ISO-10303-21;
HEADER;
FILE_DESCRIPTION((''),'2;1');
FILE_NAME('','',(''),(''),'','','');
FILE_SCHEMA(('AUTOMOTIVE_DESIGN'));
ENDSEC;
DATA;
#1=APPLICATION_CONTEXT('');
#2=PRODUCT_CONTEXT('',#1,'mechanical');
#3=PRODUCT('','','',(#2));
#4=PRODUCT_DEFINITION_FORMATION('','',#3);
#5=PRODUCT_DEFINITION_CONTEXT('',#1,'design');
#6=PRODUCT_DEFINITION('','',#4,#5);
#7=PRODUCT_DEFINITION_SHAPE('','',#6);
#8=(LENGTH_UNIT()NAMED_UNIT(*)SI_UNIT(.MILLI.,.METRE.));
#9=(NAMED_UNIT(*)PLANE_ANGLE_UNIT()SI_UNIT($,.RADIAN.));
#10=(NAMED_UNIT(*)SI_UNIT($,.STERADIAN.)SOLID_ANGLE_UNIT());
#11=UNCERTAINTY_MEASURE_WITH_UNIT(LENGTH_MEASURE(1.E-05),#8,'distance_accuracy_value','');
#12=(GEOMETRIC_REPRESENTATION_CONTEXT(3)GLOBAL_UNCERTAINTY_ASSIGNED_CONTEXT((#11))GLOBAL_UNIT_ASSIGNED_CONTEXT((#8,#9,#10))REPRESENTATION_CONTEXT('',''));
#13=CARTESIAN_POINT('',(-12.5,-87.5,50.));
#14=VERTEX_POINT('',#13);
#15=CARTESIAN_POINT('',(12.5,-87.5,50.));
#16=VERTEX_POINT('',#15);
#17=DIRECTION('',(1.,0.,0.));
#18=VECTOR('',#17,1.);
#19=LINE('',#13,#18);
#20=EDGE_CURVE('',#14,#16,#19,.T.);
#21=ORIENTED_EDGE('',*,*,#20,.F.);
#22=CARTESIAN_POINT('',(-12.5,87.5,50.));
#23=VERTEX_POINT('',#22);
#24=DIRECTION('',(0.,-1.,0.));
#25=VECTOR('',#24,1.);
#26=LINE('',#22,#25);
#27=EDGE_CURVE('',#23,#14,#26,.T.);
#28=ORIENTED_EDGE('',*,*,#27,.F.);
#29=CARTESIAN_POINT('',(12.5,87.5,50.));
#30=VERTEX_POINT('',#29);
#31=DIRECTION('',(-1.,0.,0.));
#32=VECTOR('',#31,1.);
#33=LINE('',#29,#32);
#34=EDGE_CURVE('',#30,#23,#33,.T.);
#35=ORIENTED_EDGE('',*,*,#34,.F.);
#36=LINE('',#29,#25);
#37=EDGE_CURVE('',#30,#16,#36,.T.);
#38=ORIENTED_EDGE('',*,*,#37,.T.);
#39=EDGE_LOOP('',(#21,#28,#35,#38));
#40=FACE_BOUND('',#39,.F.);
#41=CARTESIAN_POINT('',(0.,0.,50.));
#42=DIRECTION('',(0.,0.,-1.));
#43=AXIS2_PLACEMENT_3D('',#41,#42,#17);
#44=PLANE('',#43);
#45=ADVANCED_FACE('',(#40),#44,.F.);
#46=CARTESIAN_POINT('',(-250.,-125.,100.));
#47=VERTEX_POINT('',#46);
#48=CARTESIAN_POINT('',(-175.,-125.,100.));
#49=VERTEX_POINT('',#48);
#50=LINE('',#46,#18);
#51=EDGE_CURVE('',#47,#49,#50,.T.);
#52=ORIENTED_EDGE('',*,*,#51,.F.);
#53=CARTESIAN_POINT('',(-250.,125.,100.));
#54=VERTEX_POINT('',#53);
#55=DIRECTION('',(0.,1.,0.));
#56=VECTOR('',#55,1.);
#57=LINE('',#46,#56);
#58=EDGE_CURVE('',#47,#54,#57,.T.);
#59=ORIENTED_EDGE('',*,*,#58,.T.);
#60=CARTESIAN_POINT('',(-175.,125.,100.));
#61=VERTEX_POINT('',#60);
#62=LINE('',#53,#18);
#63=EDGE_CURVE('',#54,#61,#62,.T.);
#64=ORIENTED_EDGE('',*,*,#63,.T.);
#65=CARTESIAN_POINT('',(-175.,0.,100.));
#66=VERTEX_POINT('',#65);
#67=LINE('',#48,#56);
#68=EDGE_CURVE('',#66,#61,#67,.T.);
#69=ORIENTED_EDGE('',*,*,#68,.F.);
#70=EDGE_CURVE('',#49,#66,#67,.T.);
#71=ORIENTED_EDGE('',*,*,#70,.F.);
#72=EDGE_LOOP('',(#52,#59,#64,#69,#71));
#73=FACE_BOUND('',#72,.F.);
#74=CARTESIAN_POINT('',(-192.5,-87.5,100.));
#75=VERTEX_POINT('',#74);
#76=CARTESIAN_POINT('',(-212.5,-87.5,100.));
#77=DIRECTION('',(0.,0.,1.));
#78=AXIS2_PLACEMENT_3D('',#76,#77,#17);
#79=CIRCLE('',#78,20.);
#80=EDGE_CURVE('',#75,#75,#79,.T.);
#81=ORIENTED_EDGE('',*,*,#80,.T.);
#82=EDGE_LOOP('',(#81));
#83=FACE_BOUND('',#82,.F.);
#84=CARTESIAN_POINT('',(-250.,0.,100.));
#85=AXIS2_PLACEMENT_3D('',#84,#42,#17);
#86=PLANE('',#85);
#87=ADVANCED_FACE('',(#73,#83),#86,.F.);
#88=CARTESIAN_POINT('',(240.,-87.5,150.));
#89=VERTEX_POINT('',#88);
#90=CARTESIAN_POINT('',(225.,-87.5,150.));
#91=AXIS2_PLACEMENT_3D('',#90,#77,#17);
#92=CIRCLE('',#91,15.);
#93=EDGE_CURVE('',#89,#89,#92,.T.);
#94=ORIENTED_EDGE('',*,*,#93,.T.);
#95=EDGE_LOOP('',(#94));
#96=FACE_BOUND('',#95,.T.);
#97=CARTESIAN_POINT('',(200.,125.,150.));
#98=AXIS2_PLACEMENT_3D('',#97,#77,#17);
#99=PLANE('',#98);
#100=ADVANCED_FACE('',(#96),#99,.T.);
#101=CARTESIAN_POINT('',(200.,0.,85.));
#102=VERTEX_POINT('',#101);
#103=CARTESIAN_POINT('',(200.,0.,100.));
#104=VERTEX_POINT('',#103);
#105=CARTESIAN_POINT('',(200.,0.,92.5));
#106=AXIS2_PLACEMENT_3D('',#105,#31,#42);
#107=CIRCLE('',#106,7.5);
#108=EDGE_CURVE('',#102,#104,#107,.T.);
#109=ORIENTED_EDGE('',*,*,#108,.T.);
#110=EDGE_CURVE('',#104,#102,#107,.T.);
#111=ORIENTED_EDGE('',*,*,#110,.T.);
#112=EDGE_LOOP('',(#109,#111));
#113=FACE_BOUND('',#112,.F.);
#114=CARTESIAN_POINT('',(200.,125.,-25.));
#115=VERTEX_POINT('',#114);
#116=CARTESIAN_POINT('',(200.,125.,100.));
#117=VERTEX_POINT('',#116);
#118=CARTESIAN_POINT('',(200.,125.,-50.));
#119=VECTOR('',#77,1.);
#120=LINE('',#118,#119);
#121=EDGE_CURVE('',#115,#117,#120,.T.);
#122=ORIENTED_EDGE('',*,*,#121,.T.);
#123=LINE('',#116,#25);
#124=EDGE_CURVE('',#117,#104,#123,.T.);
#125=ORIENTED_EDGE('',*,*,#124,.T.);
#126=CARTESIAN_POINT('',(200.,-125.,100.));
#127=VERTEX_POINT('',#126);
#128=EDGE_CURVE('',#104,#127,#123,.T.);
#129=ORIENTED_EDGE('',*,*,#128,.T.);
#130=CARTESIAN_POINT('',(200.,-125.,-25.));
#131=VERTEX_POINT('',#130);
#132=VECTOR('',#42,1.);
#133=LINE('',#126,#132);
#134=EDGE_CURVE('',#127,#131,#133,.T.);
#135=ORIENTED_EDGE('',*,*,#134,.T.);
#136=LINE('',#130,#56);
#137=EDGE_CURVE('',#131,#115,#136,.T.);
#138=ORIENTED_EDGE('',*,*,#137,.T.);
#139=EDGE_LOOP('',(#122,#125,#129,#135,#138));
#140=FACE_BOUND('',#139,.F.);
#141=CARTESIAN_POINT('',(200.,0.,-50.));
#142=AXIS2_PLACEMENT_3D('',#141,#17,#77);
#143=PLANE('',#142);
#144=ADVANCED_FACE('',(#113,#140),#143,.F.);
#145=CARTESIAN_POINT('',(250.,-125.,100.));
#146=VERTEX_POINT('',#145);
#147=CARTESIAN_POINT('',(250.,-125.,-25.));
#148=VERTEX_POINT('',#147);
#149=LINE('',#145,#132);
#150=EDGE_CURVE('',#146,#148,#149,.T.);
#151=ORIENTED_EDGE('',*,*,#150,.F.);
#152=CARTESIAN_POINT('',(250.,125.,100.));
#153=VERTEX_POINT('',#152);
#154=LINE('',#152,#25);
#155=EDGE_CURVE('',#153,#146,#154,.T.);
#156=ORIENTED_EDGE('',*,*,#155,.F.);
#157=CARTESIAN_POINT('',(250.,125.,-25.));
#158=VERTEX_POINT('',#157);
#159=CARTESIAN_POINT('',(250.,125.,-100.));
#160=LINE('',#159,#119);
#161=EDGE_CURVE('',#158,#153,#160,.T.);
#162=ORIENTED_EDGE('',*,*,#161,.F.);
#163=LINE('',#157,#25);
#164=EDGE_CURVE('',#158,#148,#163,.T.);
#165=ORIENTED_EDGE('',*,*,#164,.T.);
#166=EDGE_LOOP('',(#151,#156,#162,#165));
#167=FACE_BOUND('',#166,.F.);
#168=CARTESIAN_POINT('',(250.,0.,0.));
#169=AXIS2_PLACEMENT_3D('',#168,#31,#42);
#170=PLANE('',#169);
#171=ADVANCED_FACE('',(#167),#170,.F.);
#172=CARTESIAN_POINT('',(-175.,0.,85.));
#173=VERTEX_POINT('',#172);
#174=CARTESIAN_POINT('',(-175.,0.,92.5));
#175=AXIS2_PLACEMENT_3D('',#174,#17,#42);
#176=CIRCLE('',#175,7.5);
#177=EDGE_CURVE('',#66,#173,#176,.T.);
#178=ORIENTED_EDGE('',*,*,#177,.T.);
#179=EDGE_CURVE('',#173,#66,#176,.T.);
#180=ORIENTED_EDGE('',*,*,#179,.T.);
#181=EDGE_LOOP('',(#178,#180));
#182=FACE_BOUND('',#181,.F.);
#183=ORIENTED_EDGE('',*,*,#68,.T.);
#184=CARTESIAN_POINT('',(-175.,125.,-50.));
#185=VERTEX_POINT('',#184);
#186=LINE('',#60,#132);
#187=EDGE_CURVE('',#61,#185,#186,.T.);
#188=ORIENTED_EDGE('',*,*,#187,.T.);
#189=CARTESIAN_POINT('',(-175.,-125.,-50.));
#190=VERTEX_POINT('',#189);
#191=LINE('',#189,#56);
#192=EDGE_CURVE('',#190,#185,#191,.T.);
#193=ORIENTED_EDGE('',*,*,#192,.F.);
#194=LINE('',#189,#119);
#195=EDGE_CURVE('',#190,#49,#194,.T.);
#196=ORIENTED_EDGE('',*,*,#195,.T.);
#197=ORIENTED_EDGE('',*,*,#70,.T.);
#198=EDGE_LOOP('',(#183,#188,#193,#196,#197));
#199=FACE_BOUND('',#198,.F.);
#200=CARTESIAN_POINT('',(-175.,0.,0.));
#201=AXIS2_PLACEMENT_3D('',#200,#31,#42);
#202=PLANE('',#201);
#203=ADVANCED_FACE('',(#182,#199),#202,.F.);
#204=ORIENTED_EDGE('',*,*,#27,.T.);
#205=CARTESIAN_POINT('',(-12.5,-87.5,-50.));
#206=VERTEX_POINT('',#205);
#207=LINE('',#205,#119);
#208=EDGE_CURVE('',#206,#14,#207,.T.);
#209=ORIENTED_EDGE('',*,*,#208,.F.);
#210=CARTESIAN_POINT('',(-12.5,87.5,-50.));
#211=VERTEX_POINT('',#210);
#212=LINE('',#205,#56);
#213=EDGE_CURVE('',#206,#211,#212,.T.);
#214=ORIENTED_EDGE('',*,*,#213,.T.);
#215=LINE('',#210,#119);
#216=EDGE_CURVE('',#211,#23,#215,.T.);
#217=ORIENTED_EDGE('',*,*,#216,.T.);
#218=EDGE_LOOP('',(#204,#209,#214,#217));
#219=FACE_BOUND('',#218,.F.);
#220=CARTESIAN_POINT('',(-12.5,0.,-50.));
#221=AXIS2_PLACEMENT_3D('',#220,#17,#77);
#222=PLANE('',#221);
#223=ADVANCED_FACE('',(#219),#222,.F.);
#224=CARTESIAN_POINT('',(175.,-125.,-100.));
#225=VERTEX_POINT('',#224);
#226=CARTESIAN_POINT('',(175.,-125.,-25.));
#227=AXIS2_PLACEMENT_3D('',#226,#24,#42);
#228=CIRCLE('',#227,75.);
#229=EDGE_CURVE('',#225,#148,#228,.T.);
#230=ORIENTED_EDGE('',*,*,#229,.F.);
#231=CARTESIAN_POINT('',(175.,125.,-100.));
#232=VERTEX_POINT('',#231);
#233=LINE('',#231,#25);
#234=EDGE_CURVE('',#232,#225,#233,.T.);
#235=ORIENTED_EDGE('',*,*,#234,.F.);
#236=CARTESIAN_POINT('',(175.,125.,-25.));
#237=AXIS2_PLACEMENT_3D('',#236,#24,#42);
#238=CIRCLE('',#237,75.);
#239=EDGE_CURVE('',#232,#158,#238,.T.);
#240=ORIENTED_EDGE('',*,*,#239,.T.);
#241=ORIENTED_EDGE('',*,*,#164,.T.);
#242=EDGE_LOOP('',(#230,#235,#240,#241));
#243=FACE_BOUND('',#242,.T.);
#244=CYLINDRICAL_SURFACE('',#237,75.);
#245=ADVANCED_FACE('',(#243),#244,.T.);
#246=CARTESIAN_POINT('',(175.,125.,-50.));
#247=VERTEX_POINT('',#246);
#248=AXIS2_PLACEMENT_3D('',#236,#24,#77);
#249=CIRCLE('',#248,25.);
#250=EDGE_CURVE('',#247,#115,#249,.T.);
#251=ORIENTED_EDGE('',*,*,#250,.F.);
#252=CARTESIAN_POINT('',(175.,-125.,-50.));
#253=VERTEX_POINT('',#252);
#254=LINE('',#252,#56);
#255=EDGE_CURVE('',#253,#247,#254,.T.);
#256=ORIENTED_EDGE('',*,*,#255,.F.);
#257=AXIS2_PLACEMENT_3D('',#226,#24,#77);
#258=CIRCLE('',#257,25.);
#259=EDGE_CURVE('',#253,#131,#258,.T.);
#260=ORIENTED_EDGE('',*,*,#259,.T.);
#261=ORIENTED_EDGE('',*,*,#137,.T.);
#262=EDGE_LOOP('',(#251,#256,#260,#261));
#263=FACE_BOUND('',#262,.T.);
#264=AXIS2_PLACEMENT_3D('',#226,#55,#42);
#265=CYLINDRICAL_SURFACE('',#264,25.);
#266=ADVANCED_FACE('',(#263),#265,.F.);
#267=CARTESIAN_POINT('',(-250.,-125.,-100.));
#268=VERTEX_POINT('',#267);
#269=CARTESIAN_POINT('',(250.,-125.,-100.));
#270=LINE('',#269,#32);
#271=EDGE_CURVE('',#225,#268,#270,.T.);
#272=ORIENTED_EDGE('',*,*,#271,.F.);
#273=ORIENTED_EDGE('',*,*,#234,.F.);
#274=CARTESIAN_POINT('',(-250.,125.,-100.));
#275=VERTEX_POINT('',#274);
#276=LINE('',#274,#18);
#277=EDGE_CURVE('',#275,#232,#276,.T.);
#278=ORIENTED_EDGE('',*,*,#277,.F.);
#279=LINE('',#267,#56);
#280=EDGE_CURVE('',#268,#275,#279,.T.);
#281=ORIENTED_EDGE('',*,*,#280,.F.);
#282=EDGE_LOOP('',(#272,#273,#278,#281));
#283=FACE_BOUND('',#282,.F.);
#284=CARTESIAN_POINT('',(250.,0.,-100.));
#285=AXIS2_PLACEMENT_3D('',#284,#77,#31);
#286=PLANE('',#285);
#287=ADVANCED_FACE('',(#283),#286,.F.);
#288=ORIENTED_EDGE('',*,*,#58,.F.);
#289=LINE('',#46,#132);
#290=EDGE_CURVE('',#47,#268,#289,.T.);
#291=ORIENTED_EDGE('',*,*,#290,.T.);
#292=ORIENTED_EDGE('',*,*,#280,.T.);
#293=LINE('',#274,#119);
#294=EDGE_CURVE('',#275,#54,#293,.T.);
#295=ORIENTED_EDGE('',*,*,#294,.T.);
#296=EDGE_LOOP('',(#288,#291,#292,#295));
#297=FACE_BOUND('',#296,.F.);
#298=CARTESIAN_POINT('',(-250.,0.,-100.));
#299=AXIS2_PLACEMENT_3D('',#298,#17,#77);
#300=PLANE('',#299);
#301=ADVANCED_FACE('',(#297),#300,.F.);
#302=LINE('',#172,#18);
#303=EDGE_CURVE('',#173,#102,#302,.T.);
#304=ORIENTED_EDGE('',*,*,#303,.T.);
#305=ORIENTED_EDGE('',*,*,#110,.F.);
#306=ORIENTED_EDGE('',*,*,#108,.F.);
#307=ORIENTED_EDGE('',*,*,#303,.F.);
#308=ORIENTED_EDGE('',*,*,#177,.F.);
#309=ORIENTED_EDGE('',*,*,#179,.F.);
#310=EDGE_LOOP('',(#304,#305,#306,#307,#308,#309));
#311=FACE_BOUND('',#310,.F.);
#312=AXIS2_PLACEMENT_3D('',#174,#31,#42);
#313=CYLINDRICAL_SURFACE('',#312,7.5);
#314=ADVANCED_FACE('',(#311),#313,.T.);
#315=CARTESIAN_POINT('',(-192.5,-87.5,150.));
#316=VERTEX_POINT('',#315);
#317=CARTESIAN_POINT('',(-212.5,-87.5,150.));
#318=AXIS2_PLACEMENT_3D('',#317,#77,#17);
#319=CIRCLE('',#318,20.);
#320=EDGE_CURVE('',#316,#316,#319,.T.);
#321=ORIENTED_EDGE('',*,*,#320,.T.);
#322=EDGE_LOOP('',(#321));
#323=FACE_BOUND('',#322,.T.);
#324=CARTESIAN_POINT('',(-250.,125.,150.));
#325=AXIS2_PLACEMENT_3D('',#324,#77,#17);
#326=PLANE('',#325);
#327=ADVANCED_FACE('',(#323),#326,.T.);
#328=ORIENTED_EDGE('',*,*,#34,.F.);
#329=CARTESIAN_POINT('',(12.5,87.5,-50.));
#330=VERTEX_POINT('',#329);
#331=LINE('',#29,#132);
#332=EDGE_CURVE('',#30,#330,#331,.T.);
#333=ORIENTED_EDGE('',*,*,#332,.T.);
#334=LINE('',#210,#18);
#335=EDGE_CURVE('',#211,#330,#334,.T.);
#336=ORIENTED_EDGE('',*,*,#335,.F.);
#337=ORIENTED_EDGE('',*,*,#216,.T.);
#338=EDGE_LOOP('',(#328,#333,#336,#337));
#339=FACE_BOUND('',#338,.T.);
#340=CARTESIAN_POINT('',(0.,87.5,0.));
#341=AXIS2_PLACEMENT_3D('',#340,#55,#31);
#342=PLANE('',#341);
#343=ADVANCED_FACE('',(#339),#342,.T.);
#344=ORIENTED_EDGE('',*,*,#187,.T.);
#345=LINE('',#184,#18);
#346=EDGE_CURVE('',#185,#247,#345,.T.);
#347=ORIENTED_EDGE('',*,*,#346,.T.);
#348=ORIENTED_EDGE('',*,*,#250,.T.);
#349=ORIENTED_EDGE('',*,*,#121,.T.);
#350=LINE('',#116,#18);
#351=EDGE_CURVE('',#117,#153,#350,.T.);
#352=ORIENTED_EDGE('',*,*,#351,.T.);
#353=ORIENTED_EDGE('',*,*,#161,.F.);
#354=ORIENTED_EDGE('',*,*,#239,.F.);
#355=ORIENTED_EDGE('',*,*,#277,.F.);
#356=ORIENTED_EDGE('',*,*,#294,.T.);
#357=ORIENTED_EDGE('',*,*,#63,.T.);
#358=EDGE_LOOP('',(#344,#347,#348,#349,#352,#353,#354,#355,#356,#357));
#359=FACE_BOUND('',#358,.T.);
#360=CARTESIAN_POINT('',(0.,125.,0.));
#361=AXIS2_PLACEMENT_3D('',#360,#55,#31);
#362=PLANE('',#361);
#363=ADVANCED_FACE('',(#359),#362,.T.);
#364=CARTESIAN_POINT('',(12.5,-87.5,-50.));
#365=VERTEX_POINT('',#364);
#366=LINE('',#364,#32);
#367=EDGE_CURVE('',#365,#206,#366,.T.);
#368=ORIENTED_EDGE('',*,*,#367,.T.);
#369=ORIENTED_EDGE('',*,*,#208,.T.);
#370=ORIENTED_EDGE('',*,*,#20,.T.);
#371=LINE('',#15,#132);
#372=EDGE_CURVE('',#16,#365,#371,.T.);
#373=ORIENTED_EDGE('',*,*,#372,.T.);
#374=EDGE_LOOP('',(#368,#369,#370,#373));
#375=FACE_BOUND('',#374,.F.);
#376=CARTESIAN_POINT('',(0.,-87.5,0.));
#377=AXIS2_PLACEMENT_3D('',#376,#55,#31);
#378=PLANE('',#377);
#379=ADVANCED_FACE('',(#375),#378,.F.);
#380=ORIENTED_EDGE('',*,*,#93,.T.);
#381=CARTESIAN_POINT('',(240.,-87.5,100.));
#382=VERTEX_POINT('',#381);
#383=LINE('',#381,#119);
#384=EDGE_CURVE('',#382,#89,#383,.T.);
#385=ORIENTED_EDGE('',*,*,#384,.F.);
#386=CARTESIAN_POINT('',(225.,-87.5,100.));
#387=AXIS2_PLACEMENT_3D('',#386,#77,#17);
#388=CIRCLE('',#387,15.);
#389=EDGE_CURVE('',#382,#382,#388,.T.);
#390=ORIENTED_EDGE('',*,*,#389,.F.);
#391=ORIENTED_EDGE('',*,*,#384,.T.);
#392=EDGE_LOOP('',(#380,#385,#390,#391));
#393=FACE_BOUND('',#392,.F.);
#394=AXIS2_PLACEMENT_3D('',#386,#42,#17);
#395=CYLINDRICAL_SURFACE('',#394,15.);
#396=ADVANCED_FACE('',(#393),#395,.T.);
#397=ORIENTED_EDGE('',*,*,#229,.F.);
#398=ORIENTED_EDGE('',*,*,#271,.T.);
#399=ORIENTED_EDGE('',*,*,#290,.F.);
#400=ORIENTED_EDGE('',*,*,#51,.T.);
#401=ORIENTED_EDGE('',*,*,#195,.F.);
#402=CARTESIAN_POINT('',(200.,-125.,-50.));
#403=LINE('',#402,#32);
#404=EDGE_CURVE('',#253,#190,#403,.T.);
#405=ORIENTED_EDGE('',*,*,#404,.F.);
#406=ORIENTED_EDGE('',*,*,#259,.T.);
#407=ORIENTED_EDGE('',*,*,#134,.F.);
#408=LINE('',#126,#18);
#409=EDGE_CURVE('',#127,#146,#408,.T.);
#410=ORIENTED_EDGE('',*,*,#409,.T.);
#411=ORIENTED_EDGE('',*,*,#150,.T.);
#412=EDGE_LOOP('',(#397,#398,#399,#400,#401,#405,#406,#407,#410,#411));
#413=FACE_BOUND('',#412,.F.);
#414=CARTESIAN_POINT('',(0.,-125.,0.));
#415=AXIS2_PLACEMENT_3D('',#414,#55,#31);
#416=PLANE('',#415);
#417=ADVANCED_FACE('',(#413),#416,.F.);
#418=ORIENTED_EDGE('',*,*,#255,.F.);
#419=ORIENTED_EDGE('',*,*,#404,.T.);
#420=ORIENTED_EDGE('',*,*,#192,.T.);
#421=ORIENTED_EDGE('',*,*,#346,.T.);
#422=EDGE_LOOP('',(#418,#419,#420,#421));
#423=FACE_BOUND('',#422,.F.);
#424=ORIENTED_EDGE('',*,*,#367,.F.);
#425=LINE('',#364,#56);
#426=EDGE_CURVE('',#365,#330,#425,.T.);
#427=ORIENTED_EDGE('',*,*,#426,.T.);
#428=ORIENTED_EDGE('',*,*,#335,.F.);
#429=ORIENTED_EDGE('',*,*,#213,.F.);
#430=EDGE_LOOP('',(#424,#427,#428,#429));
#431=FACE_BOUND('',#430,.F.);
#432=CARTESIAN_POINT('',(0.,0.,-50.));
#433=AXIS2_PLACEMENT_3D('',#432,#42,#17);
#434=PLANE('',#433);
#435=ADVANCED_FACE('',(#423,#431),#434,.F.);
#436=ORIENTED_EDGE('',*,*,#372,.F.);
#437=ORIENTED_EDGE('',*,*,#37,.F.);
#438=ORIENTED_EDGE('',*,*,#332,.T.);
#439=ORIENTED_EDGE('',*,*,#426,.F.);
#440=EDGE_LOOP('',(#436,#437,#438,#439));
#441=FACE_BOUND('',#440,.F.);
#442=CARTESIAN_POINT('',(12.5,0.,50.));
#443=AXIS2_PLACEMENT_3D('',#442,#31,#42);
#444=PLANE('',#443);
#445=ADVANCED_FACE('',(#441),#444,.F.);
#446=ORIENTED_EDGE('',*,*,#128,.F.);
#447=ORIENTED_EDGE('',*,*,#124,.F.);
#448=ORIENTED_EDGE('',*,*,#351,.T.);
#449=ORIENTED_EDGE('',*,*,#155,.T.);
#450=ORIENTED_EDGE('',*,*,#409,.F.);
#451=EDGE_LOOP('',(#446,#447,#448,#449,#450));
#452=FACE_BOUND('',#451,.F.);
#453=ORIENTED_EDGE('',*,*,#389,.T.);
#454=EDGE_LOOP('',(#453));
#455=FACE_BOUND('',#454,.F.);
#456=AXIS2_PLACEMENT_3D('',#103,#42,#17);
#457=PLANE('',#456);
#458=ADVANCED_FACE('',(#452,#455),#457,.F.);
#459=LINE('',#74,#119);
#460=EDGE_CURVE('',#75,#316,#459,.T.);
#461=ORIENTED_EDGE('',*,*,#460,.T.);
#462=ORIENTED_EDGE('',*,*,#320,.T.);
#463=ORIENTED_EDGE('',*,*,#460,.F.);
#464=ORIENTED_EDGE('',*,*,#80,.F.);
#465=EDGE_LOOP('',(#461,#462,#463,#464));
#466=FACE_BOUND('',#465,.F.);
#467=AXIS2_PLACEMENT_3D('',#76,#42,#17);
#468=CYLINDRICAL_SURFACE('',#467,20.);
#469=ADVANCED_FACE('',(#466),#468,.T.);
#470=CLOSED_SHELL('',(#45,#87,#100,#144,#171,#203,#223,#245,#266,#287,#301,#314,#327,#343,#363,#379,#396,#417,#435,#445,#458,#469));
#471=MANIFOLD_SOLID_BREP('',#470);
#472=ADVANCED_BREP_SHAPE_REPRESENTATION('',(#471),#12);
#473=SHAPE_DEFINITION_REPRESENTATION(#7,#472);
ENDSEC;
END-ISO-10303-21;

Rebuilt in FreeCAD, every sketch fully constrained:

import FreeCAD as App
import Part
import Sketcher

V = App.Vector
Q = App.Units.Quantity


def edges_at(feature, points):
    """Names of the edges that pass closest to the given points."""
    edges = feature.Shape.Edges
    near = lambda p: min(range(len(edges)), key=lambda i: edges[i].distToShape(Part.Vertex(*p))[0])
    return sorted({f"Edge{near(p) + 1}" for p in points})


def add_polygon(sketch, points):
    """Adds a closed chain of lines whose ends are joined by coincident constraints."""
    first, n = sketch.GeometryCount, len(points)
    for a, b in zip(points, points[1:] + points[:1]):
        sketch.addGeometry(Part.LineSegment(App.Vector(*a, 0), App.Vector(*b, 0)), False)
    for i in range(n):
        sketch.addConstraint(Sketcher.Constraint("Coincident", first + i, 2, first + (i + 1) % n, 1))

doc = App.newDocument("Part")
body = doc.addObject("PartDesign::Body", "Body")

sketch1 = doc.addObject("Sketcher::SketchObject", "Sketch")
body.addObject(sketch1)
sketch1.AttachmentSupport = (doc.XZ_Plane, [""])
sketch1.MapMode = "FlatFace"
add_polygon(sketch1, [(250, -100), (-250, -100), (-250, 100), (-175, 100), (-175, -50), (200, -50), (200, 100), (250, 100)])
sketch1.addConstraint([
    Sketcher.Constraint("Horizontal", 0),
    Sketcher.Constraint("Vertical", 1),
    Sketcher.Constraint("Horizontal", 2),
    Sketcher.Constraint("Vertical", 3),
    Sketcher.Constraint("Horizontal", 4),
    Sketcher.Constraint("Vertical", 5),
    Sketcher.Constraint("Horizontal", 6),
    Sketcher.Constraint("Vertical", 7),
    Sketcher.Constraint("Symmetric", 0, 2, 6, 2, -1, 1),
    Sketcher.Constraint("Horizontal", 2, 2, 5, 2),
    Sketcher.Constraint("DistanceX", 0, 2, 0, 1, Q("500 mm")),
    Sketcher.Constraint("DistanceX", 2, 1, 2, 2, Q("75 mm")),
    Sketcher.Constraint("DistanceX", 6, 1, 6, 2, Q("50 mm")),
    Sketcher.Constraint("DistanceY", 1, 1, 1, 2, Q("200 mm")),
    Sketcher.Constraint("DistanceY", 3, 2, -1, 1, Q("50 mm")),
])
pad1 = doc.addObject("PartDesign::Pad", "Pad")
body.addObject(pad1)
pad1.Profile = sketch1
pad1.Length = 250
pad1.Midplane = True
doc.recompute()

fillet = doc.addObject("PartDesign::Fillet", "Fillet")
body.addObject(fillet)
fillet.Base = (pad1, edges_at(pad1, [(250, 0, -100)]))
fillet.Radius = 75
doc.recompute()

fillet2 = doc.addObject("PartDesign::Fillet", "Fillet001")
body.addObject(fillet2)
fillet2.Base = (fillet, edges_at(fillet, [(200, 0, -50)]))
fillet2.Radius = 25

sketch2 = doc.addObject("Sketcher::SketchObject", "Sketch001")
body.addObject(sketch2)
sketch2.AttachmentSupport = (doc.XY_Plane, [""])
sketch2.MapMode = "FlatFace"
sketch2.AttachmentOffset = App.Placement(V(0, 0, 100), App.Rotation())
sketch2.addGeometry(Part.Circle(V(-212.5, -87.5, 0), V(0, 0, 1), 20), False)
sketch2.addConstraint([
    Sketcher.Constraint("Diameter", 0, Q("40 mm")),
    Sketcher.Constraint("DistanceX", 0, 3, -1, 1, Q("212.5 mm")),
    Sketcher.Constraint("DistanceY", 0, 3, -1, 1, Q("87.5 mm")),
])
pad2 = doc.addObject("PartDesign::Pad", "Pad001")
body.addObject(pad2)
pad2.Profile = sketch2
pad2.Length = 50

sketch3 = doc.addObject("Sketcher::SketchObject", "Sketch002")
body.addObject(sketch3)
sketch3.AttachmentSupport = (doc.XY_Plane, [""])
sketch3.MapMode = "FlatFace"
sketch3.AttachmentOffset = App.Placement(V(0, 0, 100), App.Rotation())
sketch3.addGeometry(Part.Circle(V(225, -87.5, 0), V(0, 0, 1), 15), False)
sketch3.addConstraint([
    Sketcher.Constraint("Diameter", 0, Q("30 mm")),
    Sketcher.Constraint("DistanceX", -1, 1, 0, 3, Q("225 mm")),
    Sketcher.Constraint("DistanceY", 0, 3, -1, 1, Q("87.5 mm")),
])
pad3 = doc.addObject("PartDesign::Pad", "Pad002")
body.addObject(pad3)
pad3.Profile = sketch3
pad3.Length = 50

sketch4 = doc.addObject("Sketcher::SketchObject", "Sketch003")
body.addObject(sketch4)
sketch4.AttachmentSupport = (doc.XZ_Plane, [""])
sketch4.MapMode = "FlatFace"
add_polygon(sketch4, [(12.5, 50), (12.5, -50), (-12.5, -50), (-12.5, 50)])
sketch4.addConstraint([
    Sketcher.Constraint("Vertical", 0),
    Sketcher.Constraint("Horizontal", 1),
    Sketcher.Constraint("Vertical", 2),
    Sketcher.Constraint("Horizontal", 3),
    Sketcher.Constraint("Symmetric", 0, 2, 2, 2, -1, 1),
    Sketcher.Constraint("DistanceX", 1, 2, 1, 1, Q("25 mm")),
    Sketcher.Constraint("DistanceY", 0, 2, 0, 1, Q("100 mm")),
])
pad4 = doc.addObject("PartDesign::Pad", "Pad003")
body.addObject(pad4)
pad4.Profile = sketch4
pad4.Length = 175
pad4.Midplane = True

sketch5 = doc.addObject("Sketcher::SketchObject", "Sketch004")
body.addObject(sketch5)
sketch5.AttachmentSupport = (doc.YZ_Plane, [""])
sketch5.MapMode = "FlatFace"
sketch5.AttachmentOffset = App.Placement(V(0, 0, -175), App.Rotation())
sketch5.addGeometry(Part.Circle(V(0, 92.5, 0), V(0, 0, 1), 7.5), False)
sketch5.addConstraint([
    Sketcher.Constraint("PointOnObject", 0, 3, -2),
    Sketcher.Constraint("Diameter", 0, Q("15 mm")),
    Sketcher.Constraint("DistanceY", -1, 1, 0, 3, Q("92.5 mm")),
])
pad5 = doc.addObject("PartDesign::Pad", "Pad004")
body.addObject(pad5)
pad5.Profile = sketch5
pad5.Type = "UpToFirst"

doc.recompute()
